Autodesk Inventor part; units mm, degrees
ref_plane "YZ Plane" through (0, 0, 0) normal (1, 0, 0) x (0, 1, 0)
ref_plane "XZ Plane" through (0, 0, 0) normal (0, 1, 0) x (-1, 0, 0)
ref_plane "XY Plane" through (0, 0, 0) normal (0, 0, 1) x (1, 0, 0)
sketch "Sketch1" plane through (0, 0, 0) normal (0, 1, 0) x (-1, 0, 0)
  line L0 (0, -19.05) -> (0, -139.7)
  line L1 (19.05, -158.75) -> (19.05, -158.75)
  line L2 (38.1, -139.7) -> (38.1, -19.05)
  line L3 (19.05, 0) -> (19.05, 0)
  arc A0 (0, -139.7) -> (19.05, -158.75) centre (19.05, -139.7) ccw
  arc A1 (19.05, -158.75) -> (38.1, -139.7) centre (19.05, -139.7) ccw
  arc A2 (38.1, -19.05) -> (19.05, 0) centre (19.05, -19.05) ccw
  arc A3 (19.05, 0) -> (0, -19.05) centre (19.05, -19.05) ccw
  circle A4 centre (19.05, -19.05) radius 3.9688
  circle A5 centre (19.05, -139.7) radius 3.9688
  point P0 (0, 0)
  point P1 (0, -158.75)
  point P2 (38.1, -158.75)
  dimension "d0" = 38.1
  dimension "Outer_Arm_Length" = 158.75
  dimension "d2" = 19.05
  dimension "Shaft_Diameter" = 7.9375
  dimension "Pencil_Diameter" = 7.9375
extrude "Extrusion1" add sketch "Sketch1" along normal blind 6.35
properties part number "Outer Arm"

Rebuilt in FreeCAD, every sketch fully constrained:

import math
import FreeCAD as App
import Part
import Sketcher
Q = App.Units.Quantity

doc = App.newDocument("Part")
body = doc.addObject("PartDesign::Body", "Body")

# Sketch on XZ plane
sketch1 = body.newObject("Sketcher::SketchObject", "Sketch")
sketch1.AttachmentSupport = (doc.getObject("XZ_Plane"), [""])
sketch1.MapMode = "FlatFace"
sketch1.addGeometry([
    Part.ArcOfCircle(Part.Circle(App.Vector(-19.1, -19.1, 0), App.Vector(0, 0, 1), 19.1), math.radians(0), math.radians(180)),  # 0
    Part.LineSegment(App.Vector(0, -19.1, 0), App.Vector(0, -139.7, 0)),  # 1
    Part.ArcOfCircle(Part.Circle(App.Vector(-19.1, -139.7, 0), App.Vector(0, 0, 1), 19.1), math.radians(180), math.radians(360)),  # 2
    Part.LineSegment(App.Vector(-38.1, -139.7, 0), App.Vector(-38.1, -19.1, 0)),  # 3
    Part.Circle(App.Vector(-19.1, -139.7, 0), App.Vector(0, 0, 1), 4),  # 4
    Part.Circle(App.Vector(-19.1, -19.1, 0), App.Vector(0, 0, 1), 4),  # 5
], False)
sketch1.addConstraint([
    Sketcher.Constraint("Tangent", 0, 1, 1, 1),
    Sketcher.Constraint("Tangent", 1, 2, 2, 2),
    Sketcher.Constraint("Tangent", 2, 1, 3, 1),
    Sketcher.Constraint("Tangent", 3, 2, 0, 2),
    Sketcher.Constraint("Vertical", 1),
    Sketcher.Constraint("Vertical", 3),
    Sketcher.Constraint("Coincident", 4, 3, 2, 3),
    Sketcher.Constraint("Coincident", 5, 3, 0, 3),
    Sketcher.Constraint("Equal", 4, 5),
    Sketcher.Constraint("PointOnObject", 0, 1, -2),
    Sketcher.Constraint("Radius", 0, Q("0.75 in")),
    Sketcher.Constraint("Diameter", 4, Q("0.3125 in")),
    Sketcher.Constraint("DistanceY", 0, 3, -1, 1, Q("0.75 in")),
    Sketcher.Constraint("DistanceY", 1, 2, 1, 1, Q("4.75 in")),
])
pad1 = body.newObject("PartDesign::Pad", "Pad")
pad1.Profile = sketch1
pad1.Length = Q("0.25 in")
pad1.Reversed = True

doc.recompute()
